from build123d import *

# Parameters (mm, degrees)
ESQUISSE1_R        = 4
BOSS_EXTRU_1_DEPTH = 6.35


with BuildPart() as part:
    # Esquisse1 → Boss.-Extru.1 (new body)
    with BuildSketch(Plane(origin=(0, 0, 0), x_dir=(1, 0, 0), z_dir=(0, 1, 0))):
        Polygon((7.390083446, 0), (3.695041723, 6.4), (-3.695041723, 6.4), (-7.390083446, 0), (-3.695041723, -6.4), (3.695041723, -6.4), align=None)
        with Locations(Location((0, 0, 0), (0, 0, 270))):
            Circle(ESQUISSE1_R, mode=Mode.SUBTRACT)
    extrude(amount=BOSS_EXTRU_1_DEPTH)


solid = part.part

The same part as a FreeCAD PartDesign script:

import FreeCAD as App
import Part
import Sketcher

V = App.Vector
Q = App.Units.Quantity


def add_polygon(sketch, points):
    """Adds a closed chain of lines whose ends are joined by coincident constraints."""
    first, n = sketch.GeometryCount, len(points)
    for a, b in zip(points, points[1:] + points[:1]):
        sketch.addGeometry(Part.LineSegment(App.Vector(*a, 0), App.Vector(*b, 0)), False)
    for i in range(n):
        sketch.addConstraint(Sketcher.Constraint("Coincident", first + i, 2, first + (i + 1) % n, 1))

doc = App.newDocument("Part")
body = doc.addObject("PartDesign::Body", "Body")

sketch1 = doc.addObject("Sketcher::SketchObject", "Sketch")
body.addObject(sketch1)
sketch1.AttachmentSupport = (doc.XZ_Plane, [""])
sketch1.MapMode = "FlatFace"
add_polygon(sketch1, [(7.4, 0), (3.7, -6.4), (-3.7, -6.4), (-7.4, 0), (-3.7, 6.4), (3.7, 6.4)])
sketch1.addGeometry(Part.Circle(V(0, 0, 0), V(0, 0, 1), 4), False)
sketch1.addConstraint([
    Sketcher.Constraint("Horizontal", 1),
    Sketcher.Constraint("Horizontal", 4),
    Sketcher.Constraint("Coincident", 6, 3, -1, 1),
    Sketcher.Constraint("Symmetric", 0, 2, 3, 2, -1, 1),
    Sketcher.Constraint("Symmetric", 2, 2, 5, 2, -1, 1),
    Sketcher.Constraint("PointOnObject", 2, 2, -1),
    Sketcher.Constraint("Parallel", 2, 5),
    Sketcher.Constraint("Vertical", 1, 2, 3, 2),
    Sketcher.Constraint("Diameter", 6, Q("8 mm")),
    Sketcher.Constraint("Angle", 0, Q("-120 deg")),
    Sketcher.Constraint("DistanceY", 0, 2, -1, 1, Q("6.4 mm")),
    Sketcher.Constraint("DistanceX", 1, 2, 1, 1, Q("7.390083 mm")),
])
pad1 = doc.addObject("PartDesign::Pad", "Pad")
body.addObject(pad1)
pad1.Profile = sketch1
pad1.Length = 6.35
pad1.Reversed = True

doc.recompute()
